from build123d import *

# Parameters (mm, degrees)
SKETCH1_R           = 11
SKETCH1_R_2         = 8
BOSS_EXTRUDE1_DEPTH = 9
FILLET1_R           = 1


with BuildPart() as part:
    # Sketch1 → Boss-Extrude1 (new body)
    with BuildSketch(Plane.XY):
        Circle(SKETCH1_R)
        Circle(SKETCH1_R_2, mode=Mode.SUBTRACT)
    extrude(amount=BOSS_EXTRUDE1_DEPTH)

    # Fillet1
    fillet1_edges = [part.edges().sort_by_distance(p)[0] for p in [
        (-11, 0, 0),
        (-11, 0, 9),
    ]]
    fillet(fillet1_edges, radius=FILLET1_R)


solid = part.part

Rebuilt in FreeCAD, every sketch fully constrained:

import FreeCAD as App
import Part
import Sketcher
from FreeCAD import Vector


def edges_at(feature, points):
    """Names of the edges that pass closest to the given points."""
    edges = feature.Shape.Edges
    near = lambda p: min(range(len(edges)), key=lambda i: edges[i].distToShape(Part.Vertex(*p))[0])
    return sorted({f"Edge{near(p) + 1}" for p in points})

doc = App.newDocument("Part")
body = doc.addObject("PartDesign::Body", "Body")

# Sketch on XY plane
sketch1 = body.newObject("Sketcher::SketchObject", "Sketch")
sketch1.AttachmentSupport = (doc.getObject("XY_Plane"), [""])
sketch1.MapMode = "FlatFace"
sketch1.addGeometry(Part.Circle(Vector(0, 0, 0), Vector(0, 0, 1), 11), False)
sketch1.addGeometry(Part.Circle(Vector(0, 0, 0), Vector(0, 0, 1), 8), False)
sketch1.addConstraint(Sketcher.Constraint("Coincident", 0, 3, -1, 1))
sketch1.addConstraint(Sketcher.Constraint("Coincident", 1, 3, -1, 1))
sketch1.addConstraint(Sketcher.Constraint("Diameter", 0, 22.0))
sketch1.addConstraint(Sketcher.Constraint("Diameter", 1, 16.0))
pad1 = body.newObject("PartDesign::Pad", "Pad")
pad1.Profile = sketch1
pad1.Length = 9
doc.recompute()

fillet = body.newObject("PartDesign::Fillet", "Fillet")
fillet.Base = (pad1, edges_at(pad1, [(-11, 0, 0), (-11, 0, 9)]))
fillet.Radius = 1

doc.recompute()
